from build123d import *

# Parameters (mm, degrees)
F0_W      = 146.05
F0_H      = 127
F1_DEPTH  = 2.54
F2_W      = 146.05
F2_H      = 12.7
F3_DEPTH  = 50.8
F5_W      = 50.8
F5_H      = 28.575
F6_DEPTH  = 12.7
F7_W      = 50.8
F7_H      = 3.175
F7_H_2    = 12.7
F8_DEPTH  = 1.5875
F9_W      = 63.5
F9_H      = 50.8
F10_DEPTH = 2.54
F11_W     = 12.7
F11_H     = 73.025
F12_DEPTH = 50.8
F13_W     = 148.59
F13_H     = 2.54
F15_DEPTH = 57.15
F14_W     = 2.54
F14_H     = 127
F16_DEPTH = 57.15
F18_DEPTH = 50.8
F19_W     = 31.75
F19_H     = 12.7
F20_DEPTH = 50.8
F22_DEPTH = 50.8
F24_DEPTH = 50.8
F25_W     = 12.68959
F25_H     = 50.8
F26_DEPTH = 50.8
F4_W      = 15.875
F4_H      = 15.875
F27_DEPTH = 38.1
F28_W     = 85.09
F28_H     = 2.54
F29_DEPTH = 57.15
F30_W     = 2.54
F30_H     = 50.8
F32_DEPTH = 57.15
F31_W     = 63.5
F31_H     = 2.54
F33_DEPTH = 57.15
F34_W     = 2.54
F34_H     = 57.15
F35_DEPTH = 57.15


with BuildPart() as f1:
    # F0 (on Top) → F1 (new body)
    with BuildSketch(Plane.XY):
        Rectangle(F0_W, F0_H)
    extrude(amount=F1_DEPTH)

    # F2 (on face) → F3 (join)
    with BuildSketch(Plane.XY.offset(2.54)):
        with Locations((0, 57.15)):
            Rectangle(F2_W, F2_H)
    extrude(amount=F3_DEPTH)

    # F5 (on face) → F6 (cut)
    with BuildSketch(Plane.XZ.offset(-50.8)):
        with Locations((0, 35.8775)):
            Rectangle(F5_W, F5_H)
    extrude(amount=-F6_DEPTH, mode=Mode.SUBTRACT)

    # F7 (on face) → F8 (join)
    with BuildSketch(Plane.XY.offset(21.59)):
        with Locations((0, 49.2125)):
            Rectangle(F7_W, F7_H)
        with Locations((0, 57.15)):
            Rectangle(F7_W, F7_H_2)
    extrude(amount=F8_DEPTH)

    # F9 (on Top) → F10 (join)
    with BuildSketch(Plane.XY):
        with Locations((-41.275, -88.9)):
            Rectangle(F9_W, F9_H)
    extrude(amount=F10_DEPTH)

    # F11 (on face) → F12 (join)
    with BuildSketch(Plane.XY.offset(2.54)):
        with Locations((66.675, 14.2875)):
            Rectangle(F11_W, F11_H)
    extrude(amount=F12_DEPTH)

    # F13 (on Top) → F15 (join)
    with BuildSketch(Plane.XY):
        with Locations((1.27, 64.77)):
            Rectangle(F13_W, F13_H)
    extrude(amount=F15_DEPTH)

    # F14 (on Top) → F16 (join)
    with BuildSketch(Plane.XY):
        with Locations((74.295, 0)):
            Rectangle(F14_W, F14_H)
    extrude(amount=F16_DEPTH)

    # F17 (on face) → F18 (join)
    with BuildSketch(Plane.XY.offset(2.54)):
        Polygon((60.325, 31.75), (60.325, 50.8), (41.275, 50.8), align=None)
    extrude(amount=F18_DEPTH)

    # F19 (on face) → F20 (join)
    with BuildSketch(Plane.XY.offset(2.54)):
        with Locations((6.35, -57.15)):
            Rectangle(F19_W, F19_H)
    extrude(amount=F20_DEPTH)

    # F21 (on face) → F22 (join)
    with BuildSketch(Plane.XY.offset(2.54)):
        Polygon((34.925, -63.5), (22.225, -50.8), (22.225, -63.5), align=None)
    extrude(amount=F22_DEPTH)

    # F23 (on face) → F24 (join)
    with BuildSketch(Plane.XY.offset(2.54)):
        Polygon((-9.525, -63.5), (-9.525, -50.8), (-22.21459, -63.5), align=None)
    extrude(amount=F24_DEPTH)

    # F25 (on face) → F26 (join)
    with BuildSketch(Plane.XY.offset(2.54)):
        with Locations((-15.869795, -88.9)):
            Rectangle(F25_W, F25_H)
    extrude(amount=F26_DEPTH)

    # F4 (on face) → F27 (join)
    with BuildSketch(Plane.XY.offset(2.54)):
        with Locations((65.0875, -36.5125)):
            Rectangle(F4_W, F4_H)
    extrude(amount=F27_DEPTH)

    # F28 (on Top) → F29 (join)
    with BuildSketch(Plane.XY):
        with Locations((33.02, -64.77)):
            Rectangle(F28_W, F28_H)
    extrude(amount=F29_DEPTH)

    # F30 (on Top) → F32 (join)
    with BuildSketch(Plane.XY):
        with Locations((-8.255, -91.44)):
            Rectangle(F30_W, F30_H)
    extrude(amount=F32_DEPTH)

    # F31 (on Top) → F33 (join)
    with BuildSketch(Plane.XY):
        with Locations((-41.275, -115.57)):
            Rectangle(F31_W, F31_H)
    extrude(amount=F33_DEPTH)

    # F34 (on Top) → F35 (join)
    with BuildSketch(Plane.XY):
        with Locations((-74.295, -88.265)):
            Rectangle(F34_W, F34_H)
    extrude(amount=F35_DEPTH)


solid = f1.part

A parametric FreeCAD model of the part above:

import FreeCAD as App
import Part
import Sketcher
Q = App.Units.Quantity


def add_polygon(sketch, points):
    """Adds a closed chain of lines whose ends are joined by coincident constraints."""
    first, n = sketch.GeometryCount, len(points)
    for a, b in zip(points, points[1:] + points[:1]):
        sketch.addGeometry(Part.LineSegment(App.Vector(*a, 0), App.Vector(*b, 0)), False)
    for i in range(n):
        sketch.addConstraint(Sketcher.Constraint("Coincident", first + i, 2, first + (i + 1) % n, 1))

doc = App.newDocument("Part")
params = doc.addObject("Spreadsheet::Sheet", "Params")
for row, (alias, value) in enumerate([
    ("sketch1_height", "5 in"),
    ("sketch1_width", "5.75 in"),
    ("pad1_length", "0.1 in"),
    ("sketch2_height", "0.5 in"),
    ("sketch2_width", "5.75 in"),
    ("pad2_length", "2 in"),
    ("sketch3_width", "2 in"),
    ("sketch3_height", "1.125 in"),
    ("pocket1_length", "0.5 in"),
    ("sketch4_width", "2 in"),
    ("sketch4_height", "0.625 in"),
    ("pad3_length", "0.0625 in"),
    ("sketch5_height", "2 in"),
    ("sketch5_width", "2.5 in"),
    ("pad4_length", "0.1 in"),
    ("sketch6_width", "0.5 in"),
    ("sketch6_height", "2.875 in"),
    ("pad5_length", "2 in"),
    ("sketch7_height", "0.1 in"),
    ("sketch7_width", "5.85 in"),
    ("pad6_length", "2.25 in"),
    ("sketch8_height", "5 in"),
    ("sketch8_width", "0.1 in"),
    ("pad7_length", "2.25 in"),
    ("sketch9_width", "0.75 in"),
    ("pad8_length", "2 in"),
    ("sketch10_height", "0.5 in"),
    ("sketch10_width", "1.25 in"),
    ("pad9_length", "2 in"),
    ("sketch11_width", "0.5 in"),
    ("pad10_length", "2 in"),
    ("sketch12_height", "0.5 in"),
    ("pad11_length", "2 in"),
    ("sketch13_height", "2 in"),
    ("pad12_length", "2 in"),
    ("sketch14_width", "0.625 in"),
    ("pad13_length", "1.5 in"),
    ("sketch15_height", "0.1 in"),
    ("sketch15_width", "3.35 in"),
    ("pad14_length", "2.25 in"),
    ("sketch16_height", "2 in"),
    ("sketch16_width", "0.1 in"),
    ("pad15_length", "2.25 in"),
    ("sketch17_width", "2.5 in"),
    ("sketch17_height", "0.1 in"),
    ("pad16_length", "2.25 in"),
    ("sketch18_width", "0.1 in"),
    ("sketch18_height", "2.25 in"),
    ("pad17_length", "2.25 in"),
], start=1):
    params.set(f"A{row}", alias)
    params.set(f"B{row}", "=" + value)
    params.setAlias(f"B{row}", alias)

body = doc.addObject("PartDesign::Body", "Body")

# Sketch on XY plane
sketch1 = body.newObject("Sketcher::SketchObject", "Sketch")
sketch1.AttachmentSupport = (doc.getObject("XY_Plane"), [""])
sketch1.MapMode = "FlatFace"
add_polygon(sketch1, [(-73, 64), (-73, -64), (73, -64), (73, 64)])  # lines 0-3
sketch1.addConstraint([
    Sketcher.Constraint("Vertical", 0),
    Sketcher.Constraint("Horizontal", 1),
    Sketcher.Constraint("Vertical", 2),
    Sketcher.Constraint("Horizontal", 3),
    Sketcher.Constraint("Symmetric", 0, 2, 2, 2, -1, 1),
    Sketcher.Constraint("DistanceY", 0, 2, 0, 1, Q("5 in")),
    Sketcher.Constraint("DistanceX", 1, 1, 1, 2, Q("5.75 in")),
])
sketch1.setExpression("Constraints[9]", "Params.sketch1_height")
sketch1.setExpression("Constraints[10]", "Params.sketch1_width")
pad1 = body.newObject("PartDesign::Pad", "Pad")
pad1.Profile = sketch1
pad1.setExpression("Length", "Params.pad1_length")

# Sketch on XY plane
sketch2 = body.newObject("Sketcher::SketchObject", "Sketch001")
sketch2.AttachmentSupport = (doc.getObject("XY_Plane"), [""])
sketch2.MapMode = "FlatFace"
sketch2.AttachmentOffset = App.Placement(App.Vector(0, 0, 0.1 * 25.4), App.Rotation())
add_polygon(sketch2, [(-73, 64), (-73, 51), (73, 51), (73, 64)])  # lines 0-3
sketch2.addConstraint([
    Sketcher.Constraint("Vertical", 0),
    Sketcher.Constraint("Horizontal", 1),
    Sketcher.Constraint("Vertical", 2),
    Sketcher.Constraint("Horizontal", 3),
    Sketcher.Constraint("DistanceY", 0, 2, 0, 1, Q("0.5 in")),
    Sketcher.Constraint("DistanceY", -1, 1, 0, 2, Q("2 in")),
    Sketcher.Constraint("DistanceX", 1, 1, 1, 2, Q("5.75 in")),
    Sketcher.Constraint("DistanceX", 0, 2, -1, 1, Q("2.875 in")),
])
sketch2.setExpression("Constraints[8]", "Params.sketch2_height")
sketch2.setExpression("Constraints[10]", "Params.sketch2_width")
pad2 = body.newObject("PartDesign::Pad", "Pad001")
pad2.Profile = sketch2
pad2.setExpression("Length", "Params.pad2_length")

# Sketch on XZ plane
sketch3 = body.newObject("Sketcher::SketchObject", "Sketch002")
sketch3.AttachmentSupport = (doc.getObject("XZ_Plane"), [""])
sketch3.MapMode = "FlatFace"
sketch3.AttachmentOffset = App.Placement(App.Vector(0, 0, -2 * 25.4), App.Rotation())
add_polygon(sketch3, [(-25, 50), (-25, 22), (25, 22), (25, 50)])  # lines 0-3
sketch3.addConstraint([
    Sketcher.Constraint("Vertical", 0),
    Sketcher.Constraint("Horizontal", 1),
    Sketcher.Constraint("Vertical", 2),
    Sketcher.Constraint("Horizontal", 3),
    Sketcher.Constraint("DistanceX", 1, 1, 1, 2, Q("2 in")),
    Sketcher.Constraint("DistanceX", 0, 2, -1, 1, Q("1 in")),
    Sketcher.Constraint("DistanceY", 0, 2, 0, 1, Q("1.125 in")),
    Sketcher.Constraint("DistanceY", -1, 1, 0, 2, Q("0.85 in")),
])
sketch3.setExpression("Constraints[8]", "Params.sketch3_width")
sketch3.setExpression("Constraints[10]", "Params.sketch3_height")
pocket1 = body.newObject("PartDesign::Pocket", "Pocket")
pocket1.Profile = sketch3
pocket1.setExpression("Length", "Params.pocket1_length")

# Sketch on XY plane
sketch4 = body.newObject("Sketcher::SketchObject", "Sketch003")
sketch4.AttachmentSupport = (doc.getObject("XY_Plane"), [""])
sketch4.MapMode = "FlatFace"
sketch4.AttachmentOffset = App.Placement(App.Vector(0, 0, 0.85 * 25.4), App.Rotation())
add_polygon(sketch4, [(-25, 48), (25, 48), (25, 64), (-25, 64)])  # lines 0-3
sketch4.addConstraint([
    Sketcher.Constraint("Horizontal", 0),
    Sketcher.Constraint("Vertical", 1),
    Sketcher.Constraint("Horizontal", 2),
    Sketcher.Constraint("Vertical", 3),
    Sketcher.Constraint("DistanceX", 0, 1, 0, 2, Q("2 in")),
    Sketcher.Constraint("DistanceX", -1, 1, 0, 2, Q("1 in")),
    Sketcher.Constraint("DistanceY", -1, 1, 1, 2, Q("2.5 in")),
    Sketcher.Constraint("DistanceY", 1, 1, 1, 2, Q("0.625 in")),
])
sketch4.setExpression("Constraints[8]", "Params.sketch4_width")
sketch4.setExpression("Constraints[11]", "Params.sketch4_height")
pad3 = body.newObject("PartDesign::Pad", "Pad002")
pad3.Profile = sketch4
pad3.setExpression("Length", "Params.pad3_length")

# Sketch on XY plane
sketch5 = body.newObject("Sketcher::SketchObject", "Sketch004")
sketch5.AttachmentSupport = (doc.getObject("XY_Plane"), [""])
sketch5.MapMode = "FlatFace"
add_polygon(sketch5, [(-73, -64), (-73, -114), (-10, -114), (-10, -64)])  # lines 0-3
sketch5.addConstraint([
    Sketcher.Constraint("Vertical", 0),
    Sketcher.Constraint("Horizontal", 1),
    Sketcher.Constraint("Vertical", 2),
    Sketcher.Constraint("Horizontal", 3),
    Sketcher.Constraint("DistanceY", 0, 2, 0, 1, Q("2 in")),
    Sketcher.Constraint("DistanceX", 1, 1, 1, 2, Q("2.5 in")),
    Sketcher.Constraint("DistanceY", 0, 2, -1, 1, Q("4.5 in")),
    Sketcher.Constraint("DistanceX", 0, 2, -1, 1, Q("2.875 in")),
])
sketch5.setExpression("Constraints[8]", "Params.sketch5_height")
sketch5.setExpression("Constraints[9]", "Params.sketch5_width")
pad4 = body.newObject("PartDesign::Pad", "Pad003")
pad4.Profile = sketch5
pad4.setExpression("Length", "Params.pad4_length")

# Sketch on XY plane
sketch6 = body.newObject("Sketcher::SketchObject", "Sketch005")
sketch6.AttachmentSupport = (doc.getObject("XY_Plane"), [""])
sketch6.MapMode = "FlatFace"
sketch6.AttachmentOffset = App.Placement(App.Vector(0, 0, 0.1 * 25.4), App.Rotation())
add_polygon(sketch6, [(60, 51), (60, -22), (73, -22), (73, 51)])  # lines 0-3
sketch6.addConstraint([
    Sketcher.Constraint("Vertical", 0),
    Sketcher.Constraint("Horizontal", 1),
    Sketcher.Constraint("Vertical", 2),
    Sketcher.Constraint("Horizontal", 3),
    Sketcher.Constraint("DistanceX", 1, 1, 1, 2, Q("0.5 in")),
    Sketcher.Constraint("DistanceY", -1, 1, 2, 2, Q("2 in")),
    Sketcher.Constraint("DistanceY", 0, 2, 0, 1, Q("2.875 in")),
    Sketcher.Constraint("DistanceX", -1, 1, 0, 2, Q("2.375 in")),
])
sketch6.setExpression("Constraints[8]", "Params.sketch6_width")
sketch6.setExpression("Constraints[10]", "Params.sketch6_height")
pad5 = body.newObject("PartDesign::Pad", "Pad004")
pad5.Profile = sketch6
pad5.setExpression("Length", "Params.pad5_length")

# Sketch on XY plane
sketch7 = body.newObject("Sketcher::SketchObject", "Sketch006")
sketch7.AttachmentSupport = (doc.getObject("XY_Plane"), [""])
sketch7.MapMode = "FlatFace"
add_polygon(sketch7, [(-73, 66), (-73, 63.5), (75.6, 63.5), (75.6, 66)])  # lines 0-3
sketch7.addConstraint([
    Sketcher.Constraint("Vertical", 0),
    Sketcher.Constraint("Horizontal", 1),
    Sketcher.Constraint("Vertical", 2),
    Sketcher.Constraint("Horizontal", 3),
    Sketcher.Constraint("DistanceY", 0, 2, 0, 1, Q("0.1 in")),
    Sketcher.Constraint("DistanceX", 1, 1, 1, 2, Q("5.85 in")),
    Sketcher.Constraint("DistanceY", -1, 1, 0, 2, Q("2.5 in")),
    Sketcher.Constraint("DistanceX", 0, 2, -1, 1, Q("2.875 in")),
])
sketch7.setExpression("Constraints[8]", "Params.sketch7_height")
sketch7.setExpression("Constraints[9]", "Params.sketch7_width")
pad6 = body.newObject("PartDesign::Pad", "Pad005")
pad6.Profile = sketch7
pad6.setExpression("Length", "Params.pad6_length")

# Sketch on XY plane
sketch8 = body.newObject("Sketcher::SketchObject", "Sketch007")
sketch8.AttachmentSupport = (doc.getObject("XY_Plane"), [""])
sketch8.MapMode = "FlatFace"
add_polygon(sketch8, [(73, 63.5), (73, -63.5), (75.6, -63.5), (75.6, 63.5)])  # lines 0-3
sketch8.addConstraint([
    Sketcher.Constraint("Vertical", 0),
    Sketcher.Constraint("Horizontal", 1),
    Sketcher.Constraint("Vertical", 2),
    Sketcher.Constraint("Horizontal", 3),
    Sketcher.Constraint("DistanceY", 0, 2, 0, 1, Q("5 in")),
    Sketcher.Constraint("DistanceX", 1, 1, 1, 2, Q("0.1 in")),
    Sketcher.Constraint("DistanceY", 0, 2, -1, 1, Q("2.5 in")),
    Sketcher.Constraint("DistanceX", -1, 1, 0, 2, Q("2.875 in")),
])
sketch8.setExpression("Constraints[8]", "Params.sketch8_height")
sketch8.setExpression("Constraints[9]", "Params.sketch8_width")
pad7 = body.newObject("PartDesign::Pad", "Pad006")
pad7.Profile = sketch8
pad7.setExpression("Length", "Params.pad7_length")

# Sketch on XY plane
sketch9 = body.newObject("Sketcher::SketchObject", "Sketch008")
sketch9.AttachmentSupport = (doc.getObject("XY_Plane"), [""])
sketch9.MapMode = "FlatFace"
sketch9.AttachmentOffset = App.Placement(App.Vector(0, 0, 0.1 * 25.4), App.Rotation())
add_polygon(sketch9, [(60, 32), (60, 51), (41, 51)])  # lines 0-2
sketch9.addConstraint([
    Sketcher.Constraint("Vertical", 0),
    Sketcher.Constraint("Horizontal", 1),
    Sketcher.Constraint("Equal", 1, 0),
    Sketcher.Constraint("DistanceY", -1, 1, 0, 2, Q("2 in")),
    Sketcher.Constraint("DistanceX", 1, 2, 1, 1, Q("0.75 in")),
    Sketcher.Constraint("DistanceX", -1, 1, 0, 2, Q("2.375 in")),
])
sketch9.setExpression("Constraints[7]", "Params.sketch9_width")
pad8 = body.newObject("PartDesign::Pad", "Pad007")
pad8.Profile = sketch9
pad8.setExpression("Length", "Params.pad8_length")

# Sketch on XY plane
sketch10 = body.newObject("Sketcher::SketchObject", "Sketch009")
sketch10.AttachmentSupport = (doc.getObject("XY_Plane"), [""])
sketch10.MapMode = "FlatFace"
sketch10.AttachmentOffset = App.Placement(App.Vector(0, 0, 0.1 * 25.4), App.Rotation())
add_polygon(sketch10, [(-10, -51), (-10, -64), (22, -64), (22, -51)])  # lines 0-3
sketch10.addConstraint([
    Sketcher.Constraint("Vertical", 0),
    Sketcher.Constraint("Horizontal", 1),
    Sketcher.Constraint("Vertical", 2),
    Sketcher.Constraint("Horizontal", 3),
    Sketcher.Constraint("DistanceY", 0, 2, 0, 1, Q("0.5 in")),
    Sketcher.Constraint("DistanceY", 2, 2, -1, 1, Q("2 in")),
    Sketcher.Constraint("DistanceX", 1, 1, 1, 2, Q("1.25 in")),
    Sketcher.Constraint("DistanceX", 0, 2, -1, 1, Q("0.375 in")),
])
sketch10.setExpression("Constraints[8]", "Params.sketch10_height")
sketch10.setExpression("Constraints[10]", "Params.sketch10_width")
pad9 = body.newObject("PartDesign::Pad", "Pad008")
pad9.Profile = sketch10
pad9.setExpression("Length", "Params.pad9_length")

# Sketch on XY plane
sketch11 = body.newObject("Sketcher::SketchObject", "Sketch010")
sketch11.AttachmentSupport = (doc.getObject("XY_Plane"), [""])
sketch11.MapMode = "FlatFace"
sketch11.AttachmentOffset = App.Placement(App.Vector(0, 0, 0.1 * 25.4), App.Rotation())
add_polygon(sketch11, [(35, -64), (22, -51), (22, -64)])  # lines 0-2
sketch11.addConstraint([
    Sketcher.Constraint("Vertical", 1),
    Sketcher.Constraint("Horizontal", 2),
    Sketcher.Constraint("Equal", 2, 1),
    Sketcher.Constraint("DistanceX", 2, 1, 2, 2, Q("0.5 in")),
    Sketcher.Constraint("DistanceY", 0, 2, -1, 1, Q("2 in")),
    Sketcher.Constraint("DistanceX", -1, 1, 0, 2, Q("0.875 in")),
])
sketch11.setExpression("Constraints[6]", "Params.sketch11_width")
pad10 = body.newObject("PartDesign::Pad", "Pad009")
pad10.Profile = sketch11
pad10.setExpression("Length", "Params.pad10_length")

# Sketch on XY plane
sketch12 = body.newObject("Sketcher::SketchObject", "Sketch011")
sketch12.AttachmentSupport = (doc.getObject("XY_Plane"), [""])
sketch12.MapMode = "FlatFace"
sketch12.AttachmentOffset = App.Placement(App.Vector(0, 0, 0.1 * 25.4), App.Rotation())
add_polygon(sketch12, [(-10, -64), (-10, -51), (-22, -64)])  # lines 0-2
sketch12.addConstraint([
    Sketcher.Constraint("Vertical", 0),
    Sketcher.Constraint("Horizontal", 2),
    Sketcher.Constraint("DistanceY", 0, 1, 0, 2, Q("0.5 in")),
    Sketcher.Constraint("DistanceY", 0, 2, -1, 1, Q("2 in")),
    Sketcher.Constraint("DistanceX", 0, 2, -1, 1, Q("0.375 in")),
    Sketcher.Constraint("DistanceX", 2, 1, 2, 2, Q("12.68959 mm")),
])
sketch12.setExpression("Constraints[5]", "Params.sketch12_height")
pad11 = body.newObject("PartDesign::Pad", "Pad010")
pad11.Profile = sketch12
pad11.setExpression("Length", "Params.pad11_length")

# Sketch on XY plane
sketch13 = body.newObject("Sketcher::SketchObject", "Sketch012")
sketch13.AttachmentSupport = (doc.getObject("XY_Plane"), [""])
sketch13.MapMode = "FlatFace"
sketch13.AttachmentOffset = App.Placement(App.Vector(0, 0, 0.1 * 25.4), App.Rotation())
add_polygon(sketch13, [(-22, -64), (-22, -114), (-10, -114), (-10, -64)])  # lines 0-3
sketch13.addConstraint([
    Sketcher.Constraint("Vertical", 0),
    Sketcher.Constraint("Horizontal", 1),
    Sketcher.Constraint("Vertical", 2),
    Sketcher.Constraint("Horizontal", 3),
    Sketcher.Constraint("DistanceY", 0, 2, 0, 1, Q("2 in")),
    Sketcher.Constraint("DistanceY", 0, 2, -1, 1, Q("4.5 in")),
    Sketcher.Constraint("DistanceX", 1, 2, -1, 1, Q("0.375 in")),
    Sketcher.Constraint("DistanceX", 1, 1, 1, 2, Q("12.68959 mm")),
])
sketch13.setExpression("Constraints[8]", "Params.sketch13_height")
pad12 = body.newObject("PartDesign::Pad", "Pad011")
pad12.Profile = sketch13
pad12.setExpression("Length", "Params.pad12_length")

# Sketch on XY plane
sketch14 = body.newObject("Sketcher::SketchObject", "Sketch013")
sketch14.AttachmentSupport = (doc.getObject("XY_Plane"), [""])
sketch14.MapMode = "FlatFace"
sketch14.AttachmentOffset = App.Placement(App.Vector(0, 0, 0.1 * 25.4), App.Rotation())
add_polygon(sketch14, [(57, -29), (57, -44), (73, -44), (73, -29)])  # lines 0-3
sketch14.addConstraint([
    Sketcher.Constraint("Vertical", 0),
    Sketcher.Constraint("Horizontal", 1),
    Sketcher.Constraint("Vertical", 2),
    Sketcher.Constraint("Horizontal", 3),
    Sketcher.Constraint("Equal", 3, 0),
    Sketcher.Constraint("DistanceX", 1, 1, 1, 2, Q("0.625 in")),
    Sketcher.Constraint("DistanceX", -1, 1, 0, 2, Q("2.25 in")),
    Sketcher.Constraint("DistanceY", 0, 2, -1, 1, Q("1.75 in")),
])
sketch14.setExpression("Constraints[9]", "Params.sketch14_width")
pad13 = body.newObject("PartDesign::Pad", "Pad012")
pad13.Profile = sketch14
pad13.setExpression("Length", "Params.pad13_length")

# Sketch on XY plane
sketch15 = body.newObject("Sketcher::SketchObject", "Sketch014")
sketch15.AttachmentSupport = (doc.getObject("XY_Plane"), [""])
sketch15.MapMode = "FlatFace"
add_polygon(sketch15, [(-9.5, -63.5), (-9.5, -66), (75.6, -66), (75.6, -63.5)])  # lines 0-3
sketch15.addConstraint([
    Sketcher.Constraint("Vertical", 0),
    Sketcher.Constraint("Horizontal", 1),
    Sketcher.Constraint("Vertical", 2),
    Sketcher.Constraint("Horizontal", 3),
    Sketcher.Constraint("DistanceY", 0, 2, 0, 1, Q("0.1 in")),
    Sketcher.Constraint("DistanceX", 1, 1, 1, 2, Q("3.35 in")),
    Sketcher.Constraint("DistanceY", 0, 2, -1, 1, Q("2.6 in")),
    Sketcher.Constraint("DistanceX", 0, 2, -1, 1, Q("0.375 in")),
])
sketch15.setExpression("Constraints[8]", "Params.sketch15_height")
sketch15.setExpression("Constraints[9]", "Params.sketch15_width")
pad14 = body.newObject("PartDesign::Pad", "Pad013")
pad14.Profile = sketch15
pad14.setExpression("Length", "Params.pad14_length")

# Sketch on XY plane
sketch16 = body.newObject("Sketcher::SketchObject", "Sketch015")
sketch16.AttachmentSupport = (doc.getObject("XY_Plane"), [""])
sketch16.MapMode = "FlatFace"
add_polygon(sketch16, [(-9.5, -66), (-9.5, -116.8), (-7, -116.8), (-7, -66)])  # lines 0-3
sketch16.addConstraint([
    Sketcher.Constraint("Vertical", 0),
    Sketcher.Constraint("Horizontal", 1),
    Sketcher.Constraint("Vertical", 2),
    Sketcher.Constraint("Horizontal", 3),
    Sketcher.Constraint("DistanceY", 0, 2, 0, 1, Q("2 in")),
    Sketcher.Constraint("DistanceX", 1, 1, 1, 2, Q("0.1 in")),
    Sketcher.Constraint("DistanceY", 0, 2, -1, 1, Q("4.6 in")),
    Sketcher.Constraint("DistanceX", 0, 2, -1, 1, Q("0.375 in")),
])
sketch16.setExpression("Constraints[8]", "Params.sketch16_height")
sketch16.setExpression("Constraints[9]", "Params.sketch16_width")
pad15 = body.newObject("PartDesign::Pad", "Pad014")
pad15.Profile = sketch16
pad15.setExpression("Length", "Params.pad15_length")

# Sketch on XY plane
sketch17 = body.newObject("Sketcher::SketchObject", "Sketch016")
sketch17.AttachmentSupport = (doc.getObject("XY_Plane"), [""])
sketch17.MapMode = "FlatFace"
add_polygon(sketch17, [(-73, -114.3), (-73, -116.8), (-9.5, -116.8), (-9.5, -114.3)])  # lines 0-3
sketch17.addConstraint([
    Sketcher.Constraint("Vertical", 0),
    Sketcher.Constraint("Horizontal", 1),
    Sketcher.Constraint("Vertical", 2),
    Sketcher.Constraint("Horizontal", 3),
    Sketcher.Constraint("DistanceX", 1, 1, 1, 2, Q("2.5 in")),
    Sketcher.Constraint("DistanceY", 0, 2, 0, 1, Q("0.1 in")),
    Sketcher.Constraint("DistanceY", 0, 2, -1, 1, Q("4.6 in")),
    Sketcher.Constraint("DistanceX", 0, 2, -1, 1, Q("2.875 in")),
])
sketch17.setExpression("Constraints[8]", "Params.sketch17_width")
sketch17.setExpression("Constraints[9]", "Params.sketch17_height")
pad16 = body.newObject("PartDesign::Pad", "Pad015")
pad16.Profile = sketch17
pad16.setExpression("Length", "Params.pad16_length")

# Sketch on XY plane
sketch18 = body.newObject("Sketcher::SketchObject", "Sketch017")
sketch18.AttachmentSupport = (doc.getObject("XY_Plane"), [""])
sketch18.MapMode = "FlatFace"
add_polygon(sketch18, [(-75.6, -59.7), (-75.6, -116.8), (-73, -116.8), (-73, -59.7)])  # lines 0-3
sketch18.addConstraint([
    Sketcher.Constraint("Vertical", 0),
    Sketcher.Constraint("Horizontal", 1),
    Sketcher.Constraint("Vertical", 2),
    Sketcher.Constraint("Horizontal", 3),
    Sketcher.Constraint("DistanceX", 1, 1, 1, 2, Q("0.1 in")),
    Sketcher.Constraint("DistanceY", 0, 2, 0, 1, Q("2.25 in")),
    Sketcher.Constraint("DistanceY", 0, 2, -1, 1, Q("4.6 in")),
    Sketcher.Constraint("DistanceX", 0, 2, -1, 1, Q("2.975 in")),
])
sketch18.setExpression("Constraints[8]", "Params.sketch18_width")
sketch18.setExpression("Constraints[9]", "Params.sketch18_height")
pad17 = body.newObject("PartDesign::Pad", "Pad016")
pad17.Profile = sketch18
pad17.setExpression("Length", "Params.pad17_length")

doc.recompute()
